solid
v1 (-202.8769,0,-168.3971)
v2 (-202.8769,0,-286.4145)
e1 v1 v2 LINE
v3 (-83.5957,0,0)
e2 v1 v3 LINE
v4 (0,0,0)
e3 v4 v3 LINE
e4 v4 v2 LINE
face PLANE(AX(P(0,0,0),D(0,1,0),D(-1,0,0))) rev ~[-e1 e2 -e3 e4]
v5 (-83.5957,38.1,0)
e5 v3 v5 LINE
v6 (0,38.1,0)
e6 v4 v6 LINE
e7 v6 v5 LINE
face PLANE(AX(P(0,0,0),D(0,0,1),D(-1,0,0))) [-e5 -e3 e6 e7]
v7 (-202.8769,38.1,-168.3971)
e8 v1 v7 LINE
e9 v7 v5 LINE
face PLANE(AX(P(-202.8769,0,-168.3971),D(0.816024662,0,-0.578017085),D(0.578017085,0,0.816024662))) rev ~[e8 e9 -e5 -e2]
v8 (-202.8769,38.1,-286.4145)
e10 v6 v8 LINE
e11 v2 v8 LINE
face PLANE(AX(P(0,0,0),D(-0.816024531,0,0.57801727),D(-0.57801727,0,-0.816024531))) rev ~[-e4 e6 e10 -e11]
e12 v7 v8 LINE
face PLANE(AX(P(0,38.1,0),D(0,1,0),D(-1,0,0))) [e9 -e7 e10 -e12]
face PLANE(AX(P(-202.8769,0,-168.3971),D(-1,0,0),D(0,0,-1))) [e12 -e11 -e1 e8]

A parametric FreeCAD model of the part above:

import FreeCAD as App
import Part
import Sketcher
Q = App.Units.Quantity


def add_polygon(sketch, points):
    """Adds a closed chain of lines whose ends are joined by coincident constraints."""
    first, n = sketch.GeometryCount, len(points)
    for a, b in zip(points, points[1:] + points[:1]):
        sketch.addGeometry(Part.LineSegment(App.Vector(*a, 0), App.Vector(*b, 0)), False)
    for i in range(n):
        sketch.addConstraint(Sketcher.Constraint("Coincident", first + i, 2, first + (i + 1) % n, 1))

doc = App.newDocument("Part")
body = doc.addObject("PartDesign::Body", "Body")

sketch1 = body.newObject("Sketcher::SketchObject", "Sketch")
sketch1.AttachmentSupport = (doc.getObject("XZ_Plane"), [""])
sketch1.MapMode = "FlatFace"
add_polygon(sketch1, [(-84, 0), (0, 0), (-203, -286), (-203, -168)])
sketch1.addConstraint([
    Sketcher.Constraint("Horizontal", 0),
    Sketcher.Constraint("Vertical", 2),
    Sketcher.Constraint("Coincident", 0, 2, -1, 1),
    Sketcher.Constraint("Parallel", 1, 3),
    Sketcher.Constraint("Angle", 3, Q("54.6888 deg")),
    Sketcher.Constraint("Distance", 1, Q("13.8184 in")),
    Sketcher.Constraint("DistanceX", 0, 1, 0, 2, Q("83.5957 mm")),
])
pad1 = body.newObject("PartDesign::Pad", "Pad")
pad1.Profile = sketch1
pad1.Length = Q("1.5 in")
pad1.Reversed = True

doc.recompute()
